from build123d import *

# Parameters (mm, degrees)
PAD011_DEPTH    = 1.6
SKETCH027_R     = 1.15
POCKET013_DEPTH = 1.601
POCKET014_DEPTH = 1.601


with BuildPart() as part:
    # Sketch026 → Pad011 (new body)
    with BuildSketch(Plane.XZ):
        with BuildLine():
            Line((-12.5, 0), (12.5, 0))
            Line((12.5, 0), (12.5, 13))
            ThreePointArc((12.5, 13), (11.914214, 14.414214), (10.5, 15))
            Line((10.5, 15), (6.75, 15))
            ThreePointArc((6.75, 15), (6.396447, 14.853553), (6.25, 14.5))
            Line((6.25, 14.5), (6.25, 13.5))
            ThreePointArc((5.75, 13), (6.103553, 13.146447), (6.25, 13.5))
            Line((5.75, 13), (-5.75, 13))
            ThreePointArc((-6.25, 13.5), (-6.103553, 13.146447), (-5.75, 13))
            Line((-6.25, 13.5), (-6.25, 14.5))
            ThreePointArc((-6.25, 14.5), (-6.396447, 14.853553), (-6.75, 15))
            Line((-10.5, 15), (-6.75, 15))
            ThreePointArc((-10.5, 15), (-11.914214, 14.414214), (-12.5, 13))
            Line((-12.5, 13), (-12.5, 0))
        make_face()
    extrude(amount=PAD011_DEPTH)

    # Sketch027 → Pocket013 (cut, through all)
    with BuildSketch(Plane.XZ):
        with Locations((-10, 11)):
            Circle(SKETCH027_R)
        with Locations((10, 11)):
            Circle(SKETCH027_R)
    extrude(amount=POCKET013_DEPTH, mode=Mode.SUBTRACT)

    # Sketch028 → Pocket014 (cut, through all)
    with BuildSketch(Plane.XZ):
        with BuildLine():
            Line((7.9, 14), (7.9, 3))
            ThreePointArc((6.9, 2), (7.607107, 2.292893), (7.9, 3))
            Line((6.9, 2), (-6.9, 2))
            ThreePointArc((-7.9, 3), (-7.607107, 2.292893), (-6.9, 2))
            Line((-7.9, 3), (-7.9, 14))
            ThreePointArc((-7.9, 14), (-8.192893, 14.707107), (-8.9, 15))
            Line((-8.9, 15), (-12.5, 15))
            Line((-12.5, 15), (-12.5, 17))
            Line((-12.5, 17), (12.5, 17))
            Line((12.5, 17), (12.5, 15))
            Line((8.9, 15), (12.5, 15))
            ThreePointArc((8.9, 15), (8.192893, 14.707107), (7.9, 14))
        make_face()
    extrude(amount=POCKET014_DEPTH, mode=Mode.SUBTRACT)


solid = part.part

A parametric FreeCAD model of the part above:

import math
import FreeCAD as App
import Part
import Sketcher

doc = App.newDocument("Part")
params = doc.addObject("Spreadsheet::Sheet", "Params")
for row, (alias, value) in enumerate([
    ("sketch1_radius", "1.999999 mm"),
    ("sketch1_radius2", "0.500001 mm"),
    ("sketch1_width", "25 mm"),
    ("sketch1_height", "13 mm"),
    ("sketch1_width2", "11.5 mm"),
    ("pad1_length", "1.6 mm"),
    ("sketch2_diameter", "2.3 mm"),
    ("sketch3_radius", "0.999999 mm"),
    ("sketch3_width", "25 mm"),
    ("sketch3_height", "11 mm"),
    ("sketch3_height2", "2 mm"),
    ("sketch3_width2", "3.6 mm"),
], start=1):
    params.set(f"A{row}", alias)
    params.set(f"B{row}", "=" + value)
    params.setAlias(f"B{row}", alias)

body = doc.addObject("PartDesign::Body", "Body")

# Sketch on XZ plane
sketch1 = body.newObject("Sketcher::SketchObject", "Sketch")
sketch1.AttachmentSupport = (doc.getObject("XZ_Plane"), [""])
sketch1.MapMode = "FlatFace"
sketch1.addGeometry(Part.LineSegment(App.Vector(-12.5, 0, 0), App.Vector(12.5, 0, 0)), False)
sketch1.addGeometry(Part.LineSegment(App.Vector(12.5, 0, 0), App.Vector(12.5, 13, 0)), False)
sketch1.addGeometry(Part.ArcOfCircle(Part.Circle(App.Vector(10.5, 13, 0), App.Vector(0, 0, 1), 2), math.radians(0), math.radians(90)), False)
sketch1.addGeometry(Part.LineSegment(App.Vector(10.5, 15, 0), App.Vector(6.8, 15, 0)), False)
sketch1.addGeometry(Part.ArcOfCircle(Part.Circle(App.Vector(6.8, 14.5, 0), App.Vector(0, 0, 1), 0.5), math.radians(90), math.radians(180)), False)
sketch1.addGeometry(Part.LineSegment(App.Vector(6.2, 14.5, 0), App.Vector(6.2, 13.5, 0)), False)
sketch1.addGeometry(Part.ArcOfCircle(Part.Circle(App.Vector(5.7, 13.5, 0), App.Vector(0, 0, 1), 0.5), math.radians(-90), math.radians(0)), False)
sketch1.addGeometry(Part.LineSegment(App.Vector(5.8, 13, 0), App.Vector(-5.8, 13, 0)), False)
sketch1.addGeometry(Part.ArcOfCircle(Part.Circle(App.Vector(-5.7, 13.5, 0), App.Vector(0, 0, 1), 0.5), math.radians(-180), math.radians(-90)), False)
sketch1.addGeometry(Part.LineSegment(App.Vector(-6.2, 13.5, 0), App.Vector(-6.2, 14.5, 0)), False)
sketch1.addGeometry(Part.ArcOfCircle(Part.Circle(App.Vector(-6.8, 14.5, 0), App.Vector(0, 0, 1), 0.5), math.radians(0), math.radians(90)), False)
sketch1.addGeometry(Part.LineSegment(App.Vector(-6.8, 15, 0), App.Vector(-10.5, 15, 0)), False)
sketch1.addGeometry(Part.ArcOfCircle(Part.Circle(App.Vector(-10.5, 13, 0), App.Vector(0, 0, 1), 2), math.radians(90), math.radians(180)), False)
sketch1.addGeometry(Part.LineSegment(App.Vector(-12.5, 13, 0), App.Vector(-12.5, 0, 0)), False)
sketch1.addConstraint(Sketcher.Constraint("Coincident", 0, 2, 1, 1))
sketch1.addConstraint(Sketcher.Constraint("Tangent", 1, 2, 2, 1))
sketch1.addConstraint(Sketcher.Constraint("Tangent", 2, 2, 3, 1))
sketch1.addConstraint(Sketcher.Constraint("Coincident", 3, 2, 4, 1))
sketch1.addConstraint(Sketcher.Constraint("Coincident", 4, 2, 5, 1))
sketch1.addConstraint(Sketcher.Constraint("Coincident", 5, 2, 6, 2))
sketch1.addConstraint(Sketcher.Constraint("Coincident", 6, 1, 7, 1))
sketch1.addConstraint(Sketcher.Constraint("Coincident", 7, 2, 8, 2))
sketch1.addConstraint(Sketcher.Constraint("Coincident", 8, 1, 9, 1))
sketch1.addConstraint(Sketcher.Constraint("Coincident", 9, 2, 10, 1))
sketch1.addConstraint(Sketcher.Constraint("Coincident", 10, 2, 11, 1))
sketch1.addConstraint(Sketcher.Constraint("Tangent", 11, 2, 12, 1))
sketch1.addConstraint(Sketcher.Constraint("Tangent", 12, 2, 13, 1))
sketch1.addConstraint(Sketcher.Constraint("Coincident", 13, 2, 0, 1))
sketch1.addConstraint(Sketcher.Constraint("Horizontal", 0))
sketch1.addConstraint(Sketcher.Constraint("Vertical", 1))
sketch1.addConstraint(Sketcher.Constraint("Horizontal", 3))
sketch1.addConstraint(Sketcher.Constraint("Vertical", 5))
sketch1.addConstraint(Sketcher.Constraint("Horizontal", 7))
sketch1.addConstraint(Sketcher.Constraint("Vertical", 9))
sketch1.addConstraint(Sketcher.Constraint("Horizontal", 11))
sketch1.addConstraint(Sketcher.Constraint("Vertical", 13))
sketch1.addConstraint(Sketcher.Constraint("Equal", 4, 6))
sketch1.addConstraint(Sketcher.Constraint("Equal", 6, 8))
sketch1.addConstraint(Sketcher.Constraint("Equal", 8, 10))
sketch1.addConstraint(Sketcher.Constraint("Equal", 2, 12))
sketch1.addConstraint(Sketcher.Constraint("Symmetric", 0, 2, 13, 2, -1, 1))
sketch1.addConstraint(Sketcher.Constraint("Symmetric", 4, 3, 10, 3, -2))
sketch1.addConstraint(Sketcher.Constraint("Horizontal", 10, 3, 4, 2))
sketch1.addConstraint(Sketcher.Constraint("Horizontal", 8, 3, 5, 2))
sketch1.addConstraint(Sketcher.Constraint("Horizontal", 1, 2, 6, 1))
sketch1.addConstraint(Sketcher.Constraint("Horizontal", 5, 2, 8, 1))
sketch1.addConstraint(Sketcher.Constraint("Horizontal", 4, 2, 9, 2))
sketch1.addConstraint(Sketcher.Constraint("Vertical", 4, 3, 3, 2))
sketch1.addConstraint(Sketcher.Constraint("Vertical", 8, 3, 7, 2))
sketch1.addConstraint(Sketcher.Constraint("Equal", 3, 11))
sketch1.addConstraint(Sketcher.Constraint("Radius", 2, 1.999999))
sketch1.addConstraint(Sketcher.Constraint("Radius", 4, 0.500001))
sketch1.addConstraint(Sketcher.Constraint("DistanceX", 0, 1, 0, 2, 25.0))
sketch1.addConstraint(Sketcher.Constraint("DistanceY", 1, 1, 1, 2, 13.0))
sketch1.addConstraint(Sketcher.Constraint("DistanceX", 7, 2, 7, 1, 11.5))
sketch1.addConstraint(Sketcher.Constraint("DistanceX", 6, 1, 4, 3, 1.000001))
sketch1.setExpression("Constraints[36]", "Params.sketch1_radius")
sketch1.setExpression("Constraints[37]", "Params.sketch1_radius2")
sketch1.setExpression("Constraints[38]", "Params.sketch1_width")
sketch1.setExpression("Constraints[39]", "Params.sketch1_height")
sketch1.setExpression("Constraints[40]", "Params.sketch1_width2")
pad1 = body.newObject("PartDesign::Pad", "Pad")
pad1.Profile = sketch1
pad1.setExpression("Length", "Params.pad1_length")

# Sketch on XZ plane
sketch2 = body.newObject("Sketcher::SketchObject", "Sketch001")
sketch2.AttachmentSupport = (doc.getObject("XZ_Plane"), [""])
sketch2.MapMode = "FlatFace"
sketch2.addGeometry(Part.Circle(App.Vector(-10, 11, 0), App.Vector(0, 0, 1), 1.1), False)
sketch2.addGeometry(Part.Circle(App.Vector(10, 11, 0), App.Vector(0, 0, 1), 1.1), False)
sketch2.addConstraint(Sketcher.Constraint("Equal", 0, 1))
sketch2.addConstraint(Sketcher.Constraint("Symmetric", 0, 3, 1, 3, -2))
sketch2.addConstraint(Sketcher.Constraint("Diameter", 0, 2.3))
sketch2.addConstraint(Sketcher.Constraint("DistanceX", 0, 3, -1, 1, 10.0))
sketch2.addConstraint(Sketcher.Constraint("DistanceY", -1, 1, 0, 3, 11.0))
sketch2.setExpression("Constraints[2]", "Params.sketch2_diameter")
pocket1 = body.newObject("PartDesign::Pocket", "Pocket")
pocket1.Profile = sketch2
pocket1.Type = "ThroughAll"
pocket1.Reversed = True

# Sketch on XZ plane
sketch3 = body.newObject("Sketcher::SketchObject", "Sketch002")
sketch3.AttachmentSupport = (doc.getObject("XZ_Plane"), [""])
sketch3.MapMode = "FlatFace"
sketch3.addGeometry(Part.LineSegment(App.Vector(7.9, 3, 0), App.Vector(7.9, 14, 0)), False)
sketch3.addGeometry(Part.ArcOfCircle(Part.Circle(App.Vector(8.9, 14, 0), App.Vector(0, 0, 1), 1), math.radians(90), math.radians(180)), False)
sketch3.addGeometry(Part.LineSegment(App.Vector(8.9, 15, 0), App.Vector(12.5, 15, 0)), False)
sketch3.addGeometry(Part.LineSegment(App.Vector(12.5, 15, 0), App.Vector(12.5, 17, 0)), False)
sketch3.addGeometry(Part.LineSegment(App.Vector(12.5, 17, 0), App.Vector(-12.5, 17, 0)), False)
sketch3.addGeometry(Part.LineSegment(App.Vector(-12.5, 17, 0), App.Vector(-12.5, 15, 0)), False)
sketch3.addGeometry(Part.LineSegment(App.Vector(-12.5, 15, 0), App.Vector(-8.9, 15, 0)), False)
sketch3.addGeometry(Part.ArcOfCircle(Part.Circle(App.Vector(-8.9, 14, 0), App.Vector(0, 0, 1), 1), math.radians(0), math.radians(90)), False)
sketch3.addGeometry(Part.LineSegment(App.Vector(-7.9, 14, 0), App.Vector(-7.9, 3, 0)), False)
sketch3.addGeometry(Part.ArcOfCircle(Part.Circle(App.Vector(-6.9, 3, 0), App.Vector(0, 0, 1), 1), math.radians(180), math.radians(270)), False)
sketch3.addGeometry(Part.LineSegment(App.Vector(-6.9, 2, 0), App.Vector(6.9, 2, 0)), False)
sketch3.addGeometry(Part.ArcOfCircle(Part.Circle(App.Vector(6.9, 3, 0), App.Vector(0, 0, 1), 1), math.radians(-90), math.radians(0)), False)
sketch3.addConstraint(Sketcher.Constraint("Tangent", 0, 2, 1, 2))
sketch3.addConstraint(Sketcher.Constraint("Tangent", 1, 1, 2, 1))
sketch3.addConstraint(Sketcher.Constraint("Coincident", 2, 2, 3, 1))
sketch3.addConstraint(Sketcher.Constraint("Coincident", 3, 2, 4, 1))
sketch3.addConstraint(Sketcher.Constraint("Coincident", 4, 2, 5, 1))
sketch3.addConstraint(Sketcher.Constraint("Coincident", 5, 2, 6, 1))
sketch3.addConstraint(Sketcher.Constraint("Tangent", 6, 2, 7, 2))
sketch3.addConstraint(Sketcher.Constraint("Tangent", 7, 1, 8, 1))
sketch3.addConstraint(Sketcher.Constraint("Tangent", 8, 2, 9, 1))
sketch3.addConstraint(Sketcher.Constraint("Tangent", 9, 2, 10, 1))
sketch3.addConstraint(Sketcher.Constraint("Tangent", 10, 2, 11, 1))
sketch3.addConstraint(Sketcher.Constraint("Tangent", 11, 2, 0, 1))
sketch3.addConstraint(Sketcher.Constraint("Vertical", 0))
sketch3.addConstraint(Sketcher.Constraint("Horizontal", 2))
sketch3.addConstraint(Sketcher.Constraint("Vertical", 3))
sketch3.addConstraint(Sketcher.Constraint("Horizontal", 4))
sketch3.addConstraint(Sketcher.Constraint("Vertical", 5))
sketch3.addConstraint(Sketcher.Constraint("Horizontal", 6))
sketch3.addConstraint(Sketcher.Constraint("Vertical", 8))
sketch3.addConstraint(Sketcher.Constraint("Horizontal", 10))
sketch3.addConstraint(Sketcher.Constraint("Equal", 1, 7))
sketch3.addConstraint(Sketcher.Constraint("Equal", 7, 9))
sketch3.addConstraint(Sketcher.Constraint("Equal", 9, 11))
sketch3.addConstraint(Sketcher.Constraint("Symmetric", 1, 3, 7, 3, -2))
sketch3.addConstraint(Sketcher.Constraint("Equal", 2, 6))
sketch3.addConstraint(Sketcher.Constraint("Radius", 1, 0.999999))
sketch3.addConstraint(Sketcher.Constraint("DistanceX", 4, 2, 4, 1, 25.0))
sketch3.addConstraint(Sketcher.Constraint("DistanceY", 0, 1, 0, 2, 11.0))
sketch3.addConstraint(Sketcher.Constraint("DistanceY", 3, 1, 3, 2, 2.0))
sketch3.addConstraint(Sketcher.Constraint("DistanceX", 2, 1, 2, 2, 3.6))
sketch3.addConstraint(Sketcher.Constraint("DistanceY", -1, 1, 1, 3, 14.000001))
sketch3.setExpression("Constraints[25]", "Params.sketch3_radius")
sketch3.setExpression("Constraints[26]", "Params.sketch3_width")
sketch3.setExpression("Constraints[27]", "Params.sketch3_height")
sketch3.setExpression("Constraints[28]", "Params.sketch3_height2")
sketch3.setExpression("Constraints[29]", "Params.sketch3_width2")
pocket2 = body.newObject("PartDesign::Pocket", "Pocket001")
pocket2.Profile = sketch3
pocket2.Type = "ThroughAll"
pocket2.Reversed = True

doc.recompute()
